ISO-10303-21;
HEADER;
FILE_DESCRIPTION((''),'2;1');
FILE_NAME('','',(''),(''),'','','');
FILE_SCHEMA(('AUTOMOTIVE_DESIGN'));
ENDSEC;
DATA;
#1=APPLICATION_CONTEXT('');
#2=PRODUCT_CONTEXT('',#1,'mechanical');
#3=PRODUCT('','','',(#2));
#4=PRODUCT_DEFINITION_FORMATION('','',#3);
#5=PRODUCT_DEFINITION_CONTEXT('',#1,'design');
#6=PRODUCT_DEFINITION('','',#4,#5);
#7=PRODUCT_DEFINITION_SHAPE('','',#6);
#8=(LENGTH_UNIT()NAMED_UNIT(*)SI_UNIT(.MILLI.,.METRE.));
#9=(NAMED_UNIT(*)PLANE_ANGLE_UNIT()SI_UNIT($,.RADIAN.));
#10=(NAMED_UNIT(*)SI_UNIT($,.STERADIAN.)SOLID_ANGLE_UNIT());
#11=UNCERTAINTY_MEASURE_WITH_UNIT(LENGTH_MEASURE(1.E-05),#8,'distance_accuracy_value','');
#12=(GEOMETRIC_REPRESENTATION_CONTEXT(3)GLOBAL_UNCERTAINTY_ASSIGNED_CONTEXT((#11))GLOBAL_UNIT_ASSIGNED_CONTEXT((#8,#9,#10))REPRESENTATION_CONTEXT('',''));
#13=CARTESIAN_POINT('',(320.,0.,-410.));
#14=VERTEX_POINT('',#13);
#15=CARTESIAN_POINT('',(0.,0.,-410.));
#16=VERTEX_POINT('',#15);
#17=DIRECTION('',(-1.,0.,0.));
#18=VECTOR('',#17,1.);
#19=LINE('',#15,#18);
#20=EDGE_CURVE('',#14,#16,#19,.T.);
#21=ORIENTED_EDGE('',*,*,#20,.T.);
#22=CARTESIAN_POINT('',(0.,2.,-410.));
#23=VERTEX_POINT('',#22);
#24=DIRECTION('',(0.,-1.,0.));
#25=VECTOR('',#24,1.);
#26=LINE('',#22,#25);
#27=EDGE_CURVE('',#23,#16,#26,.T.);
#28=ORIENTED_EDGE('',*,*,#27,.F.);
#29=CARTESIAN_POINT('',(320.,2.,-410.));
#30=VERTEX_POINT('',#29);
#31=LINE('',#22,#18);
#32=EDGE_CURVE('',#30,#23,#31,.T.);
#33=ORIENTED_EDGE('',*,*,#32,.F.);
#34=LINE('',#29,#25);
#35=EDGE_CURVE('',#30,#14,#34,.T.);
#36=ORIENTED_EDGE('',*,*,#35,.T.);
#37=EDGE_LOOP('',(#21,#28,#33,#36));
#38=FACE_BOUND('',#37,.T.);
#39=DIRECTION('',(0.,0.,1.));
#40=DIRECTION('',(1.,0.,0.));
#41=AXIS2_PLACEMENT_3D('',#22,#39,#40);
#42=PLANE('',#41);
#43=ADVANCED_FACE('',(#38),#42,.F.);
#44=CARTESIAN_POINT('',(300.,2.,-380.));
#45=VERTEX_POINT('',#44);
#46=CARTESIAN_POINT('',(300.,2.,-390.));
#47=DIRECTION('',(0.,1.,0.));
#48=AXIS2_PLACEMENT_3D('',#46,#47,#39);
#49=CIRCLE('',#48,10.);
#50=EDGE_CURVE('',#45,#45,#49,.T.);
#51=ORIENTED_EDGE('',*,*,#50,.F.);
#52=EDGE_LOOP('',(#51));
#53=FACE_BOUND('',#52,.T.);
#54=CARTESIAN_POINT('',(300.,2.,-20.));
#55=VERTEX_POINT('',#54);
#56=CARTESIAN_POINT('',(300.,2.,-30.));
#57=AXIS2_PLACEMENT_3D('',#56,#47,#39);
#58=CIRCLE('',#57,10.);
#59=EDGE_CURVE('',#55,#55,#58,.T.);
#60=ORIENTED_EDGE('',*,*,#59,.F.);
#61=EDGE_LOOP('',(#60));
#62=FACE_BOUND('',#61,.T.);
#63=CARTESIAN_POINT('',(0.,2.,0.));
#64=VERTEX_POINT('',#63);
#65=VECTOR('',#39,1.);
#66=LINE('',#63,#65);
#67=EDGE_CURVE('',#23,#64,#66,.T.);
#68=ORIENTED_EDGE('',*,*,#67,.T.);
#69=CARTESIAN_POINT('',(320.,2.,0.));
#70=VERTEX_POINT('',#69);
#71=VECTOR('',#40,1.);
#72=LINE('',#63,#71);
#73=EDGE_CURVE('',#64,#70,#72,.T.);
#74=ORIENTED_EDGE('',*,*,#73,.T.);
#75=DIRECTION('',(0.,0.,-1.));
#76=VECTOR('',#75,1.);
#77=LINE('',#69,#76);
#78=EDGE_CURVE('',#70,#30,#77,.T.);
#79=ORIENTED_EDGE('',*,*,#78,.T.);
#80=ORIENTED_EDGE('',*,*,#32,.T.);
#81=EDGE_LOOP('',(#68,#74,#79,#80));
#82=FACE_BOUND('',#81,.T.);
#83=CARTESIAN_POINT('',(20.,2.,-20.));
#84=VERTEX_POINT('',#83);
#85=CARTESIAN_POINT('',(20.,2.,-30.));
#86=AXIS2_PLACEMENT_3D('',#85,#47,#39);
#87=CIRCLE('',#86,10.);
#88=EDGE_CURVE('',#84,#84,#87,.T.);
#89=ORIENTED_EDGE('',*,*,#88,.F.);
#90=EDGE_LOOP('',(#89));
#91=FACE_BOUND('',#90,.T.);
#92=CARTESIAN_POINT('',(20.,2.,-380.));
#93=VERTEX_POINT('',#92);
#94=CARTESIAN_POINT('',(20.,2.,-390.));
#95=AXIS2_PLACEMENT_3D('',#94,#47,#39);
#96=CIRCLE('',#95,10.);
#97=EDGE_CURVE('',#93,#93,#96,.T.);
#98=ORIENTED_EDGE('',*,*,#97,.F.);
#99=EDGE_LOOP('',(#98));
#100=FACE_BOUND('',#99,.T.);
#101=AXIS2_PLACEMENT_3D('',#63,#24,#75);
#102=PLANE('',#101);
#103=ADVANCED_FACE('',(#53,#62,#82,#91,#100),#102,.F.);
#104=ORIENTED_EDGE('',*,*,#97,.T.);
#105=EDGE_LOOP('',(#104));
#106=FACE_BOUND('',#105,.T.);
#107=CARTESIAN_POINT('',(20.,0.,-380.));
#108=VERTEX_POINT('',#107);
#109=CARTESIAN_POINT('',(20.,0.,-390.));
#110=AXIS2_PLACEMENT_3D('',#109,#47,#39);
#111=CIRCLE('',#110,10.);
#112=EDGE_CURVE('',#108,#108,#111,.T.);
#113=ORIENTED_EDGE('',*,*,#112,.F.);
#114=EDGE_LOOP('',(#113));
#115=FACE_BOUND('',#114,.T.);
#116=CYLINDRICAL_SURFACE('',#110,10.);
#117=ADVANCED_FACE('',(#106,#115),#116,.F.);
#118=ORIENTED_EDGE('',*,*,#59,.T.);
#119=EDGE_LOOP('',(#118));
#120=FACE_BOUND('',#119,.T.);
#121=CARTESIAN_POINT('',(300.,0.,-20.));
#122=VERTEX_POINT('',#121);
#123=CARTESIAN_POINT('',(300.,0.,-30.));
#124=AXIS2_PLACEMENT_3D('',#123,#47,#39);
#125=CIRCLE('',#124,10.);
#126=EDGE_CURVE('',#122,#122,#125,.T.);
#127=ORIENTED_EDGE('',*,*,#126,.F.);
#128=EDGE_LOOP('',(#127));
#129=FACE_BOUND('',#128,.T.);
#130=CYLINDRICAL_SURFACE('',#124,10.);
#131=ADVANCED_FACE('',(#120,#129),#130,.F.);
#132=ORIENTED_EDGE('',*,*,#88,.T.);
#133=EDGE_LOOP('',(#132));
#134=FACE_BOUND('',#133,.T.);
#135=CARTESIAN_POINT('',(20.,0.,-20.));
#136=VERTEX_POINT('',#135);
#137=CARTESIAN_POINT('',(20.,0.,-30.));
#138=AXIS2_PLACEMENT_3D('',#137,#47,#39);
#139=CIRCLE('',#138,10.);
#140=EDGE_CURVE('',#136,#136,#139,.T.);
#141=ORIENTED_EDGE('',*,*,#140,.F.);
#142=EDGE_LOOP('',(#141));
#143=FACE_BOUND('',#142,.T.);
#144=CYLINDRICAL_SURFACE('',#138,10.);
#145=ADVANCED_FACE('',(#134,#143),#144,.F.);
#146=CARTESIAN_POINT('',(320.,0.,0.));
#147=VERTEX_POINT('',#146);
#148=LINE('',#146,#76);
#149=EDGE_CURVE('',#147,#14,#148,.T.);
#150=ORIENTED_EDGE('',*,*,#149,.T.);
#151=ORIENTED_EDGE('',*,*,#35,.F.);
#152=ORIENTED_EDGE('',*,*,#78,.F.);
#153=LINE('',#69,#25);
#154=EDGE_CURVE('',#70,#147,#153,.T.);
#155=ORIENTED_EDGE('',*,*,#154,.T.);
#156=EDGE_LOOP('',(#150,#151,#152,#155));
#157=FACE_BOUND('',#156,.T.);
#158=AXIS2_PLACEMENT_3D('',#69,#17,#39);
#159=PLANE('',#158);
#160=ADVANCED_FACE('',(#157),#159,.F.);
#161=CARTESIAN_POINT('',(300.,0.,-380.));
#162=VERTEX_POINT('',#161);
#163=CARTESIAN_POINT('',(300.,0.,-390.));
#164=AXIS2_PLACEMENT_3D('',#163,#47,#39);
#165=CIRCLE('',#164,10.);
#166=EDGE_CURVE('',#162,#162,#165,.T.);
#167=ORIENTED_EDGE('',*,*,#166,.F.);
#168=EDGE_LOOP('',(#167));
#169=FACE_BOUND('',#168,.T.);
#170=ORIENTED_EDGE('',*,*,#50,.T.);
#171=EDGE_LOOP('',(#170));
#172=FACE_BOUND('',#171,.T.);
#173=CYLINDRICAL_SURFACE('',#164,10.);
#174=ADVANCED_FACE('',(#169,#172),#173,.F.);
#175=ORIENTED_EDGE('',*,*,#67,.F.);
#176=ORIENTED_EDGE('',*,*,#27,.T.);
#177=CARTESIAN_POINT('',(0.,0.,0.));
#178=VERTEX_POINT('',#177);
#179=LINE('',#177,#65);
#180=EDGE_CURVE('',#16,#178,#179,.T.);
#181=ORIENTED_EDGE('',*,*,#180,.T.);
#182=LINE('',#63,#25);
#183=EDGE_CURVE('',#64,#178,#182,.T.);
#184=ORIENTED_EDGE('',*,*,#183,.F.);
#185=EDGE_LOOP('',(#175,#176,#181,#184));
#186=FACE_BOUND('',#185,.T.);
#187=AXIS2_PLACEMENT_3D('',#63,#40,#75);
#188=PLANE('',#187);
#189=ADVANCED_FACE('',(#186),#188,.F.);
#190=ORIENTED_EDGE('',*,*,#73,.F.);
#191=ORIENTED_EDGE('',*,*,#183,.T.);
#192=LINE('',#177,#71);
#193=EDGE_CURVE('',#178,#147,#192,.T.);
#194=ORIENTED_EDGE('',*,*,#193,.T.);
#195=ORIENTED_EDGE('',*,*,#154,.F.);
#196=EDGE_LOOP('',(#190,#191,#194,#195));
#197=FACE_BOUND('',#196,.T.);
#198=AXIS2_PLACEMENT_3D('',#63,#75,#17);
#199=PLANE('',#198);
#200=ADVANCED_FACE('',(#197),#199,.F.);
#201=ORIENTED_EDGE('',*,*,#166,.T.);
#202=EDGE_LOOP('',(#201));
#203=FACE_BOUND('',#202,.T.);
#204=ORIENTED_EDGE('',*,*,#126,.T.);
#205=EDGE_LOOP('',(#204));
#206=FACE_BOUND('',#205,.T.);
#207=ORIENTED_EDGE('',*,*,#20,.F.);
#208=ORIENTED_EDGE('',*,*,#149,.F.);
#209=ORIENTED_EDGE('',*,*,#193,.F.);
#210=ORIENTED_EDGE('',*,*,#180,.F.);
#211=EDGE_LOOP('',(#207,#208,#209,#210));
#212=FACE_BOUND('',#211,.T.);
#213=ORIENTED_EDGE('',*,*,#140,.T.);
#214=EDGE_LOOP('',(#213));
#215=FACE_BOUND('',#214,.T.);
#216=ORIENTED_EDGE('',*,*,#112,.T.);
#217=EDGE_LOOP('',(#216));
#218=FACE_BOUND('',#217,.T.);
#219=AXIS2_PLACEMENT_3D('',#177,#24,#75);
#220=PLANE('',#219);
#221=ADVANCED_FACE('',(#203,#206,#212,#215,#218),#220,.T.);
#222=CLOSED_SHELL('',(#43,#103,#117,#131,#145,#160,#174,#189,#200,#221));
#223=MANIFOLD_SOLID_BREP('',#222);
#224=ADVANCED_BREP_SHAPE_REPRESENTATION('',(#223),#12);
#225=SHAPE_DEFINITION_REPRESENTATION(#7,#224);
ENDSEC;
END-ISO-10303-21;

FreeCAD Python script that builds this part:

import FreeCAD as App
import Part
import Sketcher
from FreeCAD import Vector
Q = App.Units.Quantity


def add_polygon(sketch, points):
    """Adds a closed chain of lines whose ends are joined by coincident constraints."""
    first, n = sketch.GeometryCount, len(points)
    for a, b in zip(points, points[1:] + points[:1]):
        sketch.addGeometry(Part.LineSegment(App.Vector(*a, 0), App.Vector(*b, 0)), False)
    for i in range(n):
        sketch.addConstraint(Sketcher.Constraint("Coincident", first + i, 2, first + (i + 1) % n, 1))

doc = App.newDocument("Part")
body = doc.addObject("PartDesign::Body", "Body")

# Sketch on XZ plane
sketch1 = body.newObject("Sketcher::SketchObject", "Sketch")
sketch1.AttachmentSupport = (doc.getObject("XZ_Plane"), [""])
sketch1.MapMode = "FlatFace"
add_polygon(sketch1, [(0, -410), (0, 0), (320, 0), (320, -410)])  # lines 0-3
sketch1.addConstraint([
    Sketcher.Constraint("Vertical", 0),
    Sketcher.Constraint("Horizontal", 1),
    Sketcher.Constraint("Vertical", 2),
    Sketcher.Constraint("Horizontal", 3),
    Sketcher.Constraint("Coincident", 0, 2, -1, 1),
    Sketcher.Constraint("DistanceX", 1, 1, 1, 2, Q("320 mm")),
    Sketcher.Constraint("DistanceY", 0, 1, 0, 2, Q("410 mm")),
])
pad1 = body.newObject("PartDesign::Pad", "Pad")
pad1.Profile = sketch1
pad1.Length = 2
pad1.Reversed = True

# Sketch on XZ plane
sketch2 = body.newObject("Sketcher::SketchObject", "Sketch001")
sketch2.AttachmentSupport = (doc.getObject("XZ_Plane"), [""])
sketch2.MapMode = "FlatFace"
sketch2.AttachmentOffset = App.Placement(Vector(0, 0, -2), App.Rotation())
sketch2.addGeometry([
    Part.Circle(Vector(20, -390, 0), Vector(0, 0, 1), 10),
    Part.Circle(Vector(300, -390, 0), Vector(0, 0, 1), 10),
    Part.Circle(Vector(300, -30, 0), Vector(0, 0, 1), 10),
    Part.Circle(Vector(20, -30, 0), Vector(0, 0, 1), 10),
], False)
sketch2.addConstraint([
    Sketcher.Constraint("Equal", 0, 1),
    Sketcher.Constraint("Equal", 1, 2),
    Sketcher.Constraint("Equal", 2, 3),
    Sketcher.Constraint("Horizontal", 0, 3, 1, 3),
    Sketcher.Constraint("Horizontal", 2, 3, 3, 3),
    Sketcher.Constraint("Vertical", 1, 3, 2, 3),
    Sketcher.Constraint("Vertical", 0, 3, 3, 3),
    Sketcher.Constraint("Diameter", 0, Q("20 mm")),
    Sketcher.Constraint("DistanceX", -1, 1, 0, 3, Q("20 mm")),
    Sketcher.Constraint("DistanceY", 0, 3, -1, 1, Q("390 mm")),
    Sketcher.Constraint("DistanceX", -1, 1, 1, 3, Q("300 mm")),
    Sketcher.Constraint("DistanceY", 2, 3, -1, 1, Q("30 mm")),
])
pocket1 = body.newObject("PartDesign::Pocket", "Pocket")
pocket1.Profile = sketch2
pocket1.Length = 2
pocket1.Reversed = True

doc.recompute()
